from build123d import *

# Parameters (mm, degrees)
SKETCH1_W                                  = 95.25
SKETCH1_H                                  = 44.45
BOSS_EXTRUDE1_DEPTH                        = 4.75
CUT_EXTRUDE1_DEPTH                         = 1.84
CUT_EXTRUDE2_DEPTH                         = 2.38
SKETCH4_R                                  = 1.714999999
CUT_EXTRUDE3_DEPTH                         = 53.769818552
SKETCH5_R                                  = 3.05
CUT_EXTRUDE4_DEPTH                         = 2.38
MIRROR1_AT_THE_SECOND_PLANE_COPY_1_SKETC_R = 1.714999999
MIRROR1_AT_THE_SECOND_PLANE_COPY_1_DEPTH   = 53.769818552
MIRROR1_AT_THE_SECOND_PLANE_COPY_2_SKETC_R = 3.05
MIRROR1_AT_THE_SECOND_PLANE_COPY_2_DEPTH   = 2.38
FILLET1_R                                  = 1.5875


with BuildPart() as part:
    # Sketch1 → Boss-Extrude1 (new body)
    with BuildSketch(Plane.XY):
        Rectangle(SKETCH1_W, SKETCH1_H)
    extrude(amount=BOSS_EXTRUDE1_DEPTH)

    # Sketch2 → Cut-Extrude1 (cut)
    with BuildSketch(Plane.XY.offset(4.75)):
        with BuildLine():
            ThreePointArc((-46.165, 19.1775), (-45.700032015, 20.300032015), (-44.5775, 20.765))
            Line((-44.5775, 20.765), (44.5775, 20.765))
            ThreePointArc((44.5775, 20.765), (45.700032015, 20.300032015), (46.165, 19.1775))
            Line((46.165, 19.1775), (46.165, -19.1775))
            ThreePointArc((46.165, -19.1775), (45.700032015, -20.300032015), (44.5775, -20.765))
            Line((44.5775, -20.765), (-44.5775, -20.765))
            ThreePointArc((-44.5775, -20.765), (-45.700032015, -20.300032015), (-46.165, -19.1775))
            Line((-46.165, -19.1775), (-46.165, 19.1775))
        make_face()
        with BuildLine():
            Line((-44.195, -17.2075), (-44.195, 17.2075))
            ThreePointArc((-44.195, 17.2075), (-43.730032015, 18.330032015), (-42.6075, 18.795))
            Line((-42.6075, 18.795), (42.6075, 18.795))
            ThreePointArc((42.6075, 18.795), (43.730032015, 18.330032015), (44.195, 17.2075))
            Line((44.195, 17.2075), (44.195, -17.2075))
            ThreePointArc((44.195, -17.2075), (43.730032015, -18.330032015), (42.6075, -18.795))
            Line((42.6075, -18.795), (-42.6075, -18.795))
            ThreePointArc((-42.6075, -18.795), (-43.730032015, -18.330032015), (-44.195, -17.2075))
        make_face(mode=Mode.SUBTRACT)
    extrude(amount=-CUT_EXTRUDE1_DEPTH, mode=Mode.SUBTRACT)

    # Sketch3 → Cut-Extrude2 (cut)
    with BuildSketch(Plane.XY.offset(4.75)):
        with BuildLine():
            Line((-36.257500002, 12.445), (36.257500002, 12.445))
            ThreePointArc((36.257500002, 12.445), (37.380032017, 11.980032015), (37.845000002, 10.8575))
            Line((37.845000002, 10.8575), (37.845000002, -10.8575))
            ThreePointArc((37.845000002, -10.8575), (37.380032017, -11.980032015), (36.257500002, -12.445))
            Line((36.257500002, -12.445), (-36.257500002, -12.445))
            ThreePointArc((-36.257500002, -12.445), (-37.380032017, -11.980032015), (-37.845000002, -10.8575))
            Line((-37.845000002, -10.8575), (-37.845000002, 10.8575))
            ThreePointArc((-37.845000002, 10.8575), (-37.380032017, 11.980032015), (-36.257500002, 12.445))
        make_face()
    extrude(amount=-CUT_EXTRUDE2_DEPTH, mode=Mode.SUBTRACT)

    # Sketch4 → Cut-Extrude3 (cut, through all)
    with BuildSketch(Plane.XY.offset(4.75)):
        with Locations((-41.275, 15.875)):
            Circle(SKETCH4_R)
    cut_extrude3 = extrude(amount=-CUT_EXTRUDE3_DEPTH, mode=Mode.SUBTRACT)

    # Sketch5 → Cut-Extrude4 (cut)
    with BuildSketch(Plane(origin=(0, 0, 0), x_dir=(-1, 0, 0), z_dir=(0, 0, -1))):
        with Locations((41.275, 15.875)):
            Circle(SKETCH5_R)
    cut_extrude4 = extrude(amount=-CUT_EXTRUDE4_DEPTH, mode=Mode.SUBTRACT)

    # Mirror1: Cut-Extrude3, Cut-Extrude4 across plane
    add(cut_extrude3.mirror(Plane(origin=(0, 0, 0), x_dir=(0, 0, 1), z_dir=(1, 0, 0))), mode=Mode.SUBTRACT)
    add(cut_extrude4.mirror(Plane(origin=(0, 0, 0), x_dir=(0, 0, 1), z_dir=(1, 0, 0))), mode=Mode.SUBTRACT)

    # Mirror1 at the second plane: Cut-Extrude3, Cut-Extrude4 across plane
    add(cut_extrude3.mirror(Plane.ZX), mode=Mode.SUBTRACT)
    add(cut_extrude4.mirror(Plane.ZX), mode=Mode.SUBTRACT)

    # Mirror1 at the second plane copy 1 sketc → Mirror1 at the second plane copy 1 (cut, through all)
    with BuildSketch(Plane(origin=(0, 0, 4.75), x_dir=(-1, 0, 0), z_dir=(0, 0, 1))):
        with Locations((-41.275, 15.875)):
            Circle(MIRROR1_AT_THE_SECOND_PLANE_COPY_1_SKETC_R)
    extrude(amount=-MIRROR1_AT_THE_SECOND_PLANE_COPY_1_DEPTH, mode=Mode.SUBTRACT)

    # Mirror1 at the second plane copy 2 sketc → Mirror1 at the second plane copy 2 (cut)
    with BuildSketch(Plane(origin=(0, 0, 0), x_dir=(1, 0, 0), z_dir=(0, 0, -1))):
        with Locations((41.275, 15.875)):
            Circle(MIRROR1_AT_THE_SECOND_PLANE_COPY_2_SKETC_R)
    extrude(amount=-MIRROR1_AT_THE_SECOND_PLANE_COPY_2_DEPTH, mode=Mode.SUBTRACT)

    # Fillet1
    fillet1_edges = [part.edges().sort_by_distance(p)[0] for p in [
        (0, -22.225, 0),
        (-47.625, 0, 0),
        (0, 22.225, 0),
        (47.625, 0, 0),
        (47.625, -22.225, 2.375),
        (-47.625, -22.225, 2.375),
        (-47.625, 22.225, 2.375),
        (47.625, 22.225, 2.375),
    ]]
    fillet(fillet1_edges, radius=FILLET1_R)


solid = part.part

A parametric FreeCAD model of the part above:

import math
import FreeCAD as App
import Part
import Sketcher
from FreeCAD import Vector
Q = App.Units.Quantity


def edges_at(feature, points):
    """Names of the edges that pass closest to the given points."""
    edges = feature.Shape.Edges
    near = lambda p: min(range(len(edges)), key=lambda i: edges[i].distToShape(Part.Vertex(*p))[0])
    return sorted({f"Edge{near(p) + 1}" for p in points})

doc = App.newDocument("Part")
params = doc.addObject("Spreadsheet::Sheet", "Params")
for row, (alias, value) in enumerate([
    ("sketch1_width", "3.75 in"),
    ("sketch1_height", "1.75 in"),
    ("pad1_length", "4.75 mm"),
    ("sketch2_radius", "0.0625 in"),
    ("pocket1_length", "1.84 mm"),
    ("sketch3_radius", "0.0625 in"),
    ("pocket2_length", "2.38 mm"),
    ("pocket4_length", "2.38 mm"),
    ("pocket6_length", "2.38 mm"),
    ("fillet_radius", "0.0625 in"),
], start=1):
    params.set(f"A{row}", alias)
    params.set(f"B{row}", "=" + value)
    params.setAlias(f"B{row}", alias)

body = doc.addObject("PartDesign::Body", "Body")

# Sketch on XY plane
sketch1 = body.newObject("Sketcher::SketchObject", "Sketch")
sketch1.AttachmentSupport = (doc.getObject("XY_Plane"), [""])
sketch1.MapMode = "FlatFace"
sketch1.addGeometry([
    Part.LineSegment(Vector(-48, 22, 0), Vector(-48, -22, 0)),
    Part.LineSegment(Vector(-48, -22, 0), Vector(48, -22, 0)),
    Part.LineSegment(Vector(48, -22, 0), Vector(48, 22, 0)),
    Part.LineSegment(Vector(48, 22, 0), Vector(-48, 22, 0)),
], False)
sketch1.addConstraint([
    Sketcher.Constraint("Coincident", 0, 2, 1, 1),
    Sketcher.Constraint("Coincident", 1, 2, 2, 1),
    Sketcher.Constraint("Coincident", 2, 2, 3, 1),
    Sketcher.Constraint("Coincident", 3, 2, 0, 1),
    Sketcher.Constraint("Vertical", 0),
    Sketcher.Constraint("Horizontal", 1),
    Sketcher.Constraint("Vertical", 2),
    Sketcher.Constraint("Horizontal", 3),
    Sketcher.Constraint("Symmetric", 0, 2, 2, 2, -1, 1),
    Sketcher.Constraint("DistanceX", 1, 1, 1, 2, Q("3.75 in")),
    Sketcher.Constraint("DistanceY", 0, 2, 0, 1, Q("1.75 in")),
])
sketch1.setExpression("Constraints[9]", "Params.sketch1_width")
sketch1.setExpression("Constraints[10]", "Params.sketch1_height")
pad1 = body.newObject("PartDesign::Pad", "Pad")
pad1.Profile = sketch1
pad1.setExpression("Length", "Params.pad1_length")

# Sketch on XY plane
sketch2 = body.newObject("Sketcher::SketchObject", "Sketch001")
sketch2.AttachmentSupport = (doc.getObject("XY_Plane"), [""])
sketch2.MapMode = "FlatFace"
sketch2.AttachmentOffset = App.Placement(Vector(0, 0, 4.75), App.Rotation())
sketch2.addGeometry([
    Part.ArcOfCircle(Part.Circle(Vector(-44.6, 19.2, 0), Vector(0, 0, 1), 1.6), math.radians(90), math.radians(180)),  # 0
    Part.LineSegment(Vector(-46.2, 19.2, 0), Vector(-46.2, -19.2, 0)),  # 1
    Part.ArcOfCircle(Part.Circle(Vector(-44.6, -19.2, 0), Vector(0, 0, 1), 1.6), math.radians(180), math.radians(270)),  # 2
    Part.LineSegment(Vector(-44.6, -20.8, 0), Vector(44.6, -20.8, 0)),  # 3
    Part.ArcOfCircle(Part.Circle(Vector(44.6, -19.2, 0), Vector(0, 0, 1), 1.6), math.radians(-90), math.radians(0)),  # 4
    Part.LineSegment(Vector(46.2, -19.2, 0), Vector(46.2, 19.2, 0)),  # 5
    Part.ArcOfCircle(Part.Circle(Vector(44.6, 19.2, 0), Vector(0, 0, 1), 1.6), math.radians(0), math.radians(90)),  # 6
    Part.LineSegment(Vector(44.6, 20.8, 0), Vector(-44.6, 20.8, 0)),  # 7
    Part.LineSegment(Vector(-44.2, -17.2, 0), Vector(-44.2, 17.2, 0)),  # 8
    Part.ArcOfCircle(Part.Circle(Vector(-42.6, 17.2, 0), Vector(0, 0, 1), 1.6), math.radians(90), math.radians(180)),  # 9
    Part.LineSegment(Vector(-42.6, 18.8, 0), Vector(42.6, 18.8, 0)),  # 10
    Part.ArcOfCircle(Part.Circle(Vector(42.6, 17.2, 0), Vector(0, 0, 1), 1.6), math.radians(0), math.radians(90)),  # 11
    Part.LineSegment(Vector(44.2, 17.2, 0), Vector(44.2, -17.2, 0)),  # 12
    Part.ArcOfCircle(Part.Circle(Vector(42.6, -17.2, 0), Vector(0, 0, 1), 1.6), math.radians(-90), math.radians(0)),  # 13
    Part.LineSegment(Vector(42.6, -18.8, 0), Vector(-42.6, -18.8, 0)),  # 14
    Part.ArcOfCircle(Part.Circle(Vector(-42.6, -17.2, 0), Vector(0, 0, 1), 1.6), math.radians(180), math.radians(270)),  # 15
], False)
sketch2.addConstraint([
    Sketcher.Constraint("Tangent", 0, 2, 1, 1),
    Sketcher.Constraint("Tangent", 1, 2, 2, 1),
    Sketcher.Constraint("Tangent", 2, 2, 3, 1),
    Sketcher.Constraint("Tangent", 3, 2, 4, 1),
    Sketcher.Constraint("Tangent", 4, 2, 5, 1),
    Sketcher.Constraint("Tangent", 5, 2, 6, 1),
    Sketcher.Constraint("Tangent", 6, 2, 7, 1),
    Sketcher.Constraint("Tangent", 7, 2, 0, 1),
    Sketcher.Constraint("Tangent", 8, 2, 9, 2),
    Sketcher.Constraint("Tangent", 9, 1, 10, 1),
    Sketcher.Constraint("Tangent", 10, 2, 11, 2),
    Sketcher.Constraint("Tangent", 11, 1, 12, 1),
    Sketcher.Constraint("Tangent", 12, 2, 13, 2),
    Sketcher.Constraint("Tangent", 13, 1, 14, 1),
    Sketcher.Constraint("Tangent", 14, 2, 15, 2),
    Sketcher.Constraint("Tangent", 15, 1, 8, 1),
    Sketcher.Constraint("Vertical", 1),
    Sketcher.Constraint("Horizontal", 3),
    Sketcher.Constraint("Vertical", 5),
    Sketcher.Constraint("Horizontal", 7),
    Sketcher.Constraint("Vertical", 8),
    Sketcher.Constraint("Horizontal", 10),
    Sketcher.Constraint("Vertical", 12),
    Sketcher.Constraint("Horizontal", 14),
    Sketcher.Constraint("Equal", 0, 2),
    Sketcher.Constraint("Equal", 2, 4),
    Sketcher.Constraint("Equal", 4, 6),
    Sketcher.Constraint("Equal", 6, 9),
    Sketcher.Constraint("Equal", 9, 11),
    Sketcher.Constraint("Equal", 11, 13),
    Sketcher.Constraint("Equal", 13, 15),
    Sketcher.Constraint("Symmetric", 0, 3, 4, 3, -1, 1),
    Sketcher.Constraint("Symmetric", 9, 3, 13, 3, -1, 1),
    Sketcher.Constraint("Radius", 0, Q("0.0625 in")),
    Sketcher.Constraint("DistanceX", 3, 1, 3, 2, Q("89.155 mm")),
    Sketcher.Constraint("DistanceX", 10, 1, 10, 2, Q("85.215 mm")),
    Sketcher.Constraint("DistanceY", 1, 2, 1, 1, Q("38.355 mm")),
    Sketcher.Constraint("DistanceY", 8, 1, 8, 2, Q("34.415 mm")),
])
sketch2.setExpression("Constraints[33]", "Params.sketch2_radius")
pocket1 = body.newObject("PartDesign::Pocket", "Pocket")
pocket1.Profile = sketch2
pocket1.setExpression("Length", "Params.pocket1_length")

# Sketch on XY plane
sketch3 = body.newObject("Sketcher::SketchObject", "Sketch002")
sketch3.AttachmentSupport = (doc.getObject("XY_Plane"), [""])
sketch3.MapMode = "FlatFace"
sketch3.AttachmentOffset = App.Placement(Vector(0, 0, 4.75), App.Rotation())
sketch3.addGeometry([
    Part.LineSegment(Vector(36.3, 12.4, 0), Vector(-36.3, 12.4, 0)),  # 0
    Part.ArcOfCircle(Part.Circle(Vector(-36.3, 10.9, 0), Vector(0, 0, 1), 1.6), math.radians(90), math.radians(180)),  # 1
    Part.LineSegment(Vector(-37.8, 10.9, 0), Vector(-37.8, -10.9, 0)),  # 2
    Part.ArcOfCircle(Part.Circle(Vector(-36.3, -10.9, 0), Vector(0, 0, 1), 1.6), math.radians(180), math.radians(270)),  # 3
    Part.LineSegment(Vector(-36.3, -12.4, 0), Vector(36.3, -12.4, 0)),  # 4
    Part.ArcOfCircle(Part.Circle(Vector(36.3, -10.9, 0), Vector(0, 0, 1), 1.6), math.radians(-90), math.radians(0)),  # 5
    Part.LineSegment(Vector(37.8, -10.9, 0), Vector(37.8, 10.9, 0)),  # 6
    Part.ArcOfCircle(Part.Circle(Vector(36.3, 10.9, 0), Vector(0, 0, 1), 1.6), math.radians(0), math.radians(90)),  # 7
], False)
sketch3.addConstraint([
    Sketcher.Constraint("Tangent", 0, 2, 1, 1),
    Sketcher.Constraint("Tangent", 1, 2, 2, 1),
    Sketcher.Constraint("Tangent", 2, 2, 3, 1),
    Sketcher.Constraint("Tangent", 3, 2, 4, 1),
    Sketcher.Constraint("Tangent", 4, 2, 5, 1),
    Sketcher.Constraint("Tangent", 5, 2, 6, 1),
    Sketcher.Constraint("Tangent", 6, 2, 7, 1),
    Sketcher.Constraint("Tangent", 7, 2, 0, 1),
    Sketcher.Constraint("Horizontal", 0),
    Sketcher.Constraint("Vertical", 2),
    Sketcher.Constraint("Horizontal", 4),
    Sketcher.Constraint("Vertical", 6),
    Sketcher.Constraint("Equal", 1, 3),
    Sketcher.Constraint("Equal", 3, 5),
    Sketcher.Constraint("Equal", 5, 7),
    Sketcher.Constraint("Symmetric", 1, 3, 5, 3, -1, 1),
    Sketcher.Constraint("Radius", 1, Q("0.0625 in")),
    Sketcher.Constraint("DistanceX", 0, 2, 0, 1, Q("72.515 mm")),
    Sketcher.Constraint("DistanceY", 2, 2, 2, 1, Q("21.715 mm")),
])
sketch3.setExpression("Constraints[16]", "Params.sketch3_radius")
pocket2 = body.newObject("PartDesign::Pocket", "Pocket001")
pocket2.Profile = sketch3
pocket2.setExpression("Length", "Params.pocket2_length")

# Sketch on XY plane
sketch4 = body.newObject("Sketcher::SketchObject", "Sketch003")
sketch4.AttachmentSupport = (doc.getObject("XY_Plane"), [""])
sketch4.MapMode = "FlatFace"
sketch4.AttachmentOffset = App.Placement(Vector(0, 0, 4.75), App.Rotation())
sketch4.addGeometry(Part.Circle(Vector(-41.3, 15.9, 0), Vector(0, 0, 1), 1.7), False)
sketch4.addConstraint([
    Sketcher.Constraint("Diameter", 0, Q("3.43 mm")),
    Sketcher.Constraint("DistanceX", 0, 3, -1, 1, Q("1.625 in")),
    Sketcher.Constraint("DistanceY", -1, 1, 0, 3, Q("0.625 in")),
])
pocket3 = body.newObject("PartDesign::Pocket", "Pocket002")
pocket3.Profile = sketch4
pocket3.Type = "ThroughAll"

# Sketch on XY plane
sketch5 = body.newObject("Sketcher::SketchObject", "Sketch004")
sketch5.AttachmentSupport = (doc.getObject("XY_Plane"), [""])
sketch5.MapMode = "FlatFace"
sketch5.addGeometry(Part.Circle(Vector(-41.3, 15.9, 0), Vector(0, 0, 1), 3), False)
sketch5.addConstraint([
    Sketcher.Constraint("Diameter", 0, Q("6.1 mm")),
    Sketcher.Constraint("DistanceX", 0, 3, -1, 1, Q("1.625 in")),
    Sketcher.Constraint("DistanceY", -1, 1, 0, 3, Q("0.625 in")),
])
pocket4 = body.newObject("PartDesign::Pocket", "Pocket003")
pocket4.Profile = sketch5
pocket4.setExpression("Length", "Params.pocket4_length")
pocket4.Reversed = True
doc.recompute()

mirrored = body.newObject("PartDesign::Mirrored", "Mirrored")
mirrored.Originals = [pocket3, pocket4]
mirrored.MirrorPlane = (doc.getObject("YZ_Plane"), [""])
body.Tip = mirrored
doc.recompute()

mirrored2 = body.newObject("PartDesign::Mirrored", "Mirrored001")
mirrored2.Originals = [pocket3, pocket4]
mirrored2.MirrorPlane = (doc.getObject("XZ_Plane"), [""])
body.Tip = mirrored2

# Sketch on XY plane
sketch6 = body.newObject("Sketcher::SketchObject", "Sketch005")
sketch6.AttachmentSupport = (doc.getObject("XY_Plane"), [""])
sketch6.MapMode = "FlatFace"
sketch6.AttachmentOffset = App.Placement(Vector(0, 0, 4.75), App.Rotation())
sketch6.addGeometry(Part.Circle(Vector(41.3, -15.9, 0), Vector(0, 0, 1), 1.7), False)
sketch6.addConstraint([
    Sketcher.Constraint("Diameter", 0, Q("3.43 mm")),
    Sketcher.Constraint("DistanceX", -1, 1, 0, 3, Q("1.625 in")),
    Sketcher.Constraint("DistanceY", 0, 3, -1, 1, Q("0.625 in")),
])
pocket5 = body.newObject("PartDesign::Pocket", "Pocket004")
pocket5.Profile = sketch6
pocket5.Type = "ThroughAll"

# Sketch on XY plane
sketch7 = body.newObject("Sketcher::SketchObject", "Sketch006")
sketch7.AttachmentSupport = (doc.getObject("XY_Plane"), [""])
sketch7.MapMode = "FlatFace"
sketch7.addGeometry(Part.Circle(Vector(41.3, -15.9, 0), Vector(0, 0, 1), 3), False)
sketch7.addConstraint([
    Sketcher.Constraint("Diameter", 0, Q("6.1 mm")),
    Sketcher.Constraint("DistanceX", -1, 1, 0, 3, Q("1.625 in")),
    Sketcher.Constraint("DistanceY", 0, 3, -1, 1, Q("0.625 in")),
])
pocket6 = body.newObject("PartDesign::Pocket", "Pocket005")
pocket6.Profile = sketch7
pocket6.setExpression("Length", "Params.pocket6_length")
pocket6.Reversed = True
doc.recompute()

fillet = body.newObject("PartDesign::Fillet", "Fillet")
fillet.Base = (pocket6, edges_at(pocket6, [
    (0, -22.225, 0),
    (-47.625, 0, 0),
    (0, 22.225, 0),
    (47.625, 0, 0),
    (47.625, -22.225, 2.375),
    (-47.625, -22.225, 2.375),
    (-47.625, 22.225, 2.375),
    (47.625, 22.225, 2.375),
]))
fillet.setExpression("Radius", "Params.fillet_radius")

doc.recompute()
